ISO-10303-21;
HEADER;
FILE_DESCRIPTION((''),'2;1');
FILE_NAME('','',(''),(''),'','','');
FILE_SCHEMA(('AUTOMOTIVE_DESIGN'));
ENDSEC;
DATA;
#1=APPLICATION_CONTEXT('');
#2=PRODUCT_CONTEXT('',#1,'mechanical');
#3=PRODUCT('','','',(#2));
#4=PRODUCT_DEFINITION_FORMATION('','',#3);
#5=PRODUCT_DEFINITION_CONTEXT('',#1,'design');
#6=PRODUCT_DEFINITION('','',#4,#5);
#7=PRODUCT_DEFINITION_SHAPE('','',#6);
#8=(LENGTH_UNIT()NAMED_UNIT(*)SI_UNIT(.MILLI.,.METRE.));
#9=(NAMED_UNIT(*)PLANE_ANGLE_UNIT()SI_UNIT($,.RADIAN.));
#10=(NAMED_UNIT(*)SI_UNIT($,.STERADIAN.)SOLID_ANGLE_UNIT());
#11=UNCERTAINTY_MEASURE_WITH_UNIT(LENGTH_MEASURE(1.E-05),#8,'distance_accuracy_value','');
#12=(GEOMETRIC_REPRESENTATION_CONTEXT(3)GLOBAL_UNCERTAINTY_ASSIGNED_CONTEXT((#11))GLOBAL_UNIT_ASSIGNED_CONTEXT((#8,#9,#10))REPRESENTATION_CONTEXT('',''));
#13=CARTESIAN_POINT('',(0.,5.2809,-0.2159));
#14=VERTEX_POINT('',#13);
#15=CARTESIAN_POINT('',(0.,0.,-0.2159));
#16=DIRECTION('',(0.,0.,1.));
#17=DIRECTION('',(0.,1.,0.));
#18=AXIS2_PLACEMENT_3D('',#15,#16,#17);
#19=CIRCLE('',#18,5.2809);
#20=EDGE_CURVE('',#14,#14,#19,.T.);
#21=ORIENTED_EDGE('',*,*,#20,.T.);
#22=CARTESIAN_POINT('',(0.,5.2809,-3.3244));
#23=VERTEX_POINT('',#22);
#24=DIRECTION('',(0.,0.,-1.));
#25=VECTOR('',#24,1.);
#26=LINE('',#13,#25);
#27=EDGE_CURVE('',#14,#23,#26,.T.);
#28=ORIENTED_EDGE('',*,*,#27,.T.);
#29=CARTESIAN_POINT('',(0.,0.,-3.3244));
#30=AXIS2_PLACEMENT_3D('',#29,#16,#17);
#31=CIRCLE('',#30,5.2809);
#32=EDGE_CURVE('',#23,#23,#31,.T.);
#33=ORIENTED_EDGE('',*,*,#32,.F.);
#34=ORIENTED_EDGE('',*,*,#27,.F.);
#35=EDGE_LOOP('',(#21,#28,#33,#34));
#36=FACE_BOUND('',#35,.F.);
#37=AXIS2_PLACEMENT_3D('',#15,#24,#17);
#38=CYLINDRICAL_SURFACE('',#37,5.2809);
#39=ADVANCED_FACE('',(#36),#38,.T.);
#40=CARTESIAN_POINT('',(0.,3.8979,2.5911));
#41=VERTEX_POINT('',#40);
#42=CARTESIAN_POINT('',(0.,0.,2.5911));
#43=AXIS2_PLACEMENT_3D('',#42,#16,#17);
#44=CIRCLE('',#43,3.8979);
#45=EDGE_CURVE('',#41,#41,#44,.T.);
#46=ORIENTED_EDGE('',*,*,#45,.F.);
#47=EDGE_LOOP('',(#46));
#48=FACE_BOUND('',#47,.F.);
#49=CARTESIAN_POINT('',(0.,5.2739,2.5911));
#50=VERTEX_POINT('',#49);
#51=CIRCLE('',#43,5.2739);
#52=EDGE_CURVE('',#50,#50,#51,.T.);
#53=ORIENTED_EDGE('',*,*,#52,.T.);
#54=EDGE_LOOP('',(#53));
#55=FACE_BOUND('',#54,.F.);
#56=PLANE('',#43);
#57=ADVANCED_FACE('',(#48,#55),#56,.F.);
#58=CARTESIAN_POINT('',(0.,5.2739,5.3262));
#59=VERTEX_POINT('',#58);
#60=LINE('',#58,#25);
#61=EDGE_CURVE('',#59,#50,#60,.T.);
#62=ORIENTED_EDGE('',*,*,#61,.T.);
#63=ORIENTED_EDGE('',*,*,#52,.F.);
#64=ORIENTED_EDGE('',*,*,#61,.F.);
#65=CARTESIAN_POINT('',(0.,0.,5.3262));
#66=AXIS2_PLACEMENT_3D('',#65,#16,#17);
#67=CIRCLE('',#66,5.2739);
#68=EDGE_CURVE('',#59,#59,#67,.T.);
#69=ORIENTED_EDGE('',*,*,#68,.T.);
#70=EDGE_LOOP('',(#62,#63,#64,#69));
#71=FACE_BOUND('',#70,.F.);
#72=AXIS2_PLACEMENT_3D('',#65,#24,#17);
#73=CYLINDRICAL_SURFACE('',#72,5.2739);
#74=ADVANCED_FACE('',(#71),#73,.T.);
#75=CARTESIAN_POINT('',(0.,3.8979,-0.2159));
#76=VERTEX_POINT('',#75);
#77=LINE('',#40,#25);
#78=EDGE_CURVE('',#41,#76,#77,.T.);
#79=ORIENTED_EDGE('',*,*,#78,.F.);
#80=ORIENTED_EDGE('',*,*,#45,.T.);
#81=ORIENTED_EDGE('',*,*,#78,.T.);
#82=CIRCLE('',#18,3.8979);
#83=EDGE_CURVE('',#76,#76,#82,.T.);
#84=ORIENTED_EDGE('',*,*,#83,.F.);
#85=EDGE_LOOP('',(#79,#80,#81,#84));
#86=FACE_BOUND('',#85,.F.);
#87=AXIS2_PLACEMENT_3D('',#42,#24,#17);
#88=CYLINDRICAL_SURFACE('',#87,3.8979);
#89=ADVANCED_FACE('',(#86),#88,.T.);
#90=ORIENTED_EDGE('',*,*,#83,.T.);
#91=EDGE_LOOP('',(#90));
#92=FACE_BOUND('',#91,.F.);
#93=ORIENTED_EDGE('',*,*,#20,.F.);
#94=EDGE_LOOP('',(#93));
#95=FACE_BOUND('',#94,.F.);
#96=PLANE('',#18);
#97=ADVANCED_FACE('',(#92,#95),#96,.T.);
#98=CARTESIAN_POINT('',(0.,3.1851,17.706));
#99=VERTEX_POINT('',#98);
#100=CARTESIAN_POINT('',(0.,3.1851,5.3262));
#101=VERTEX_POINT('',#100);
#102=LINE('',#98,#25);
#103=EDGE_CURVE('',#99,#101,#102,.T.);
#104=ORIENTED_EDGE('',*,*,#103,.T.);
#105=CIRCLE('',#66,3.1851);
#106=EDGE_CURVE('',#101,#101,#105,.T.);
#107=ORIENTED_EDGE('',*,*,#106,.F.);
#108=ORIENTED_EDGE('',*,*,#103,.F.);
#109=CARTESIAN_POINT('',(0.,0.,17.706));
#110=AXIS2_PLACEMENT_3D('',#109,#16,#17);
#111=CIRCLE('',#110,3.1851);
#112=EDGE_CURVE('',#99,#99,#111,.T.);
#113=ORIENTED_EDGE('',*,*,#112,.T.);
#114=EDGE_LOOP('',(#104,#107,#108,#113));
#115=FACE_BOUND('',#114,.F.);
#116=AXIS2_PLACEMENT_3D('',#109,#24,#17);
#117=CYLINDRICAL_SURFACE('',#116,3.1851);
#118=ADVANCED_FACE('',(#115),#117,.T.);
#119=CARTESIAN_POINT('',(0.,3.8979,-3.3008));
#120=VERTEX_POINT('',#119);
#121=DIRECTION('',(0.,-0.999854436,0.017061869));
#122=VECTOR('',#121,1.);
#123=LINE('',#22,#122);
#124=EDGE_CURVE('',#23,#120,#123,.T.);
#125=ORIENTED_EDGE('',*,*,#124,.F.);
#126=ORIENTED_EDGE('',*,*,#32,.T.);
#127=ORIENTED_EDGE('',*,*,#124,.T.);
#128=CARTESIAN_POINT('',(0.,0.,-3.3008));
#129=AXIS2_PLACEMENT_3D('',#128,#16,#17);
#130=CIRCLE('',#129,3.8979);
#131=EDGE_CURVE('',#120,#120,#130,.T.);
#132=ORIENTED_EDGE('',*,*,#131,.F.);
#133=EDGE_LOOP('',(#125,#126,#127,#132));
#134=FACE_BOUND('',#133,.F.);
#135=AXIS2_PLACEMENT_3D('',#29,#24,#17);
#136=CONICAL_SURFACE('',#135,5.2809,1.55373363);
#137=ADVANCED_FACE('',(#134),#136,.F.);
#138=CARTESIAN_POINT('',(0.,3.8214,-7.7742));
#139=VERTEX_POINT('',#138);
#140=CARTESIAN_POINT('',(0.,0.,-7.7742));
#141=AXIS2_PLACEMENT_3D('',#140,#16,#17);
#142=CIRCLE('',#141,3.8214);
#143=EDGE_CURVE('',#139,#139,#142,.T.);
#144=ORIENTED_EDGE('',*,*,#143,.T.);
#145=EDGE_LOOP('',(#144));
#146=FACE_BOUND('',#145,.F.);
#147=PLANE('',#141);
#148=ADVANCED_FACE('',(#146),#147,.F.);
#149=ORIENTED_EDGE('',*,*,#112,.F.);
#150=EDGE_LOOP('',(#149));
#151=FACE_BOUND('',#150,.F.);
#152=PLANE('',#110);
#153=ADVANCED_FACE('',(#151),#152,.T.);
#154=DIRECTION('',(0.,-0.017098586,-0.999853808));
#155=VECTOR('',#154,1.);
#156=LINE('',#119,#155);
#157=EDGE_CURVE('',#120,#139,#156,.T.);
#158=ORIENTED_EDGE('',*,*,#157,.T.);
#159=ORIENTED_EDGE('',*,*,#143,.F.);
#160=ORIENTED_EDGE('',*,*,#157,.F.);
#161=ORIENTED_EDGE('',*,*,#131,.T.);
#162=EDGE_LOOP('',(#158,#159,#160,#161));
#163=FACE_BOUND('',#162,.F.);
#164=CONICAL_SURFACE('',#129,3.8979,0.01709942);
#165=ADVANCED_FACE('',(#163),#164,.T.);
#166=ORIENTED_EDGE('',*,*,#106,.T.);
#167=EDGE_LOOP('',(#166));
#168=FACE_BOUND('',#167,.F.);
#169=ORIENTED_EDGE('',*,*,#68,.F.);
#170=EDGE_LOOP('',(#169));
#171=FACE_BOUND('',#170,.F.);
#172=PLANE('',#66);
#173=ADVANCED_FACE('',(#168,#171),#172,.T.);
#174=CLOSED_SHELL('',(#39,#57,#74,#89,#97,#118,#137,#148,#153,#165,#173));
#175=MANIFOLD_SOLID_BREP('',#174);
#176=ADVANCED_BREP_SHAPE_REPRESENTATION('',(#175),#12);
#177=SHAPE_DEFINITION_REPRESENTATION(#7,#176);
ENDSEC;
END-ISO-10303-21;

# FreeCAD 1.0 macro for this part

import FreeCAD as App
import Part
import Sketcher
Q = App.Units.Quantity

doc = App.newDocument("Part")
body = doc.addObject("PartDesign::Body", "Body")

sketch1 = body.newObject("Sketcher::SketchObject", "Sketch")
sketch1.AttachmentSupport = (doc.getObject("YZ_Plane"), [""])
sketch1.MapMode = "FlatFace"
sketch1.addGeometry(Part.LineSegment(App.Vector(3.1851, 17.706, 0), App.Vector(0, 17.706, 0)), False)
sketch1.addGeometry(Part.LineSegment(App.Vector(0, 17.706, 0), App.Vector(0, -7.7742, 0)), False)
sketch1.addGeometry(Part.LineSegment(App.Vector(0, -7.7742, 0), App.Vector(3.8214, -7.7742, 0)), False)
sketch1.addGeometry(Part.LineSegment(App.Vector(3.8214, -7.7742, 0), App.Vector(3.8979, -3.3008, 0)), False)
sketch1.addGeometry(Part.LineSegment(App.Vector(3.8979, -3.3008, 0), App.Vector(5.2809, -3.3244, 0)), False)
sketch1.addGeometry(Part.LineSegment(App.Vector(5.2809, -3.3244, 0), App.Vector(5.2809, -0.2159, 0)), False)
sketch1.addGeometry(Part.LineSegment(App.Vector(5.2809, -0.2159, 0), App.Vector(3.8979, -0.2159, 0)), False)
sketch1.addGeometry(Part.LineSegment(App.Vector(3.8979, -0.2159, 0), App.Vector(3.8979, 2.5911, 0)), False)
sketch1.addGeometry(Part.LineSegment(App.Vector(3.8979, 2.5911, 0), App.Vector(5.2739, 2.5911, 0)), False)
sketch1.addGeometry(Part.LineSegment(App.Vector(5.2739, 2.5911, 0), App.Vector(5.2739, 5.3262, 0)), False)
sketch1.addGeometry(Part.LineSegment(App.Vector(5.2739, 5.3262, 0), App.Vector(3.1851, 5.3262, 0)), False)
sketch1.addGeometry(Part.LineSegment(App.Vector(3.1851, 5.3262, 0), App.Vector(3.1851, 17.706, 0)), False)
sketch1.addConstraint(Sketcher.Constraint("Coincident", 0, 2, 1, 1))
sketch1.addConstraint(Sketcher.Constraint("Coincident", 1, 2, 2, 1))
sketch1.addConstraint(Sketcher.Constraint("Coincident", 2, 2, 3, 1))
sketch1.addConstraint(Sketcher.Constraint("Coincident", 3, 2, 4, 1))
sketch1.addConstraint(Sketcher.Constraint("Coincident", 4, 2, 5, 1))
sketch1.addConstraint(Sketcher.Constraint("Coincident", 5, 2, 6, 1))
sketch1.addConstraint(Sketcher.Constraint("Coincident", 6, 2, 7, 1))
sketch1.addConstraint(Sketcher.Constraint("Coincident", 7, 2, 8, 1))
sketch1.addConstraint(Sketcher.Constraint("Coincident", 8, 2, 9, 1))
sketch1.addConstraint(Sketcher.Constraint("Coincident", 9, 2, 10, 1))
sketch1.addConstraint(Sketcher.Constraint("Coincident", 10, 2, 11, 1))
sketch1.addConstraint(Sketcher.Constraint("Coincident", 11, 2, 0, 1))
sketch1.addConstraint(Sketcher.Constraint("Horizontal", 0))
sketch1.addConstraint(Sketcher.Constraint("Vertical", 1))
sketch1.addConstraint(Sketcher.Constraint("Horizontal", 2))
sketch1.addConstraint(Sketcher.Constraint("Vertical", 5))
sketch1.addConstraint(Sketcher.Constraint("Horizontal", 6))
sketch1.addConstraint(Sketcher.Constraint("Vertical", 7))
sketch1.addConstraint(Sketcher.Constraint("Horizontal", 8))
sketch1.addConstraint(Sketcher.Constraint("Vertical", 9))
sketch1.addConstraint(Sketcher.Constraint("Horizontal", 10))
sketch1.addConstraint(Sketcher.Constraint("Vertical", 11))
sketch1.addConstraint(Sketcher.Constraint("PointOnObject", 0, 2, -2))
sketch1.addConstraint(Sketcher.Constraint("Perpendicular", 3, 4))
sketch1.addConstraint(Sketcher.Constraint("Vertical", 3, 2, 6, 2))
sketch1.addConstraint(Sketcher.Constraint("Angle", 3, Q("89.0203 deg")))
sketch1.addConstraint(Sketcher.Constraint("DistanceX", 0, 2, 0, 1, 3.185))
sketch1.addConstraint(Sketcher.Constraint("DistanceX", 6, 2, 6, 1, 1.383))
sketch1.addConstraint(Sketcher.Constraint("DistanceX", 8, 1, 8, 2, 1.376))
sketch1.addConstraint(Sketcher.Constraint("DistanceY", 7, 1, 7, 2, 2.807))
sketch1.addConstraint(Sketcher.Constraint("DistanceY", 9, 1, 9, 2, 2.735))
sketch1.addConstraint(Sketcher.Constraint("Distance", 3, 4.474))
sketch1.addConstraint(Sketcher.Constraint("DistanceX", 2, 1, 2, 2, 3.8214))
sketch1.addConstraint(Sketcher.Constraint("DistanceY", 1, 2, 1, 1, 25.4802))
sketch1.addConstraint(Sketcher.Constraint("DistanceY", 5, 1, 5, 2, 3.1085))
sketch1.addConstraint(Sketcher.Constraint("DistanceY", -1, 1, 0, 2, 17.706))
revolution = body.newObject("PartDesign::Revolution", "Revolution")
revolution.Profile = sketch1
revolution.ReferenceAxis = (sketch1, ["V_Axis"])
revolution.Angle = 360

doc.recompute()
